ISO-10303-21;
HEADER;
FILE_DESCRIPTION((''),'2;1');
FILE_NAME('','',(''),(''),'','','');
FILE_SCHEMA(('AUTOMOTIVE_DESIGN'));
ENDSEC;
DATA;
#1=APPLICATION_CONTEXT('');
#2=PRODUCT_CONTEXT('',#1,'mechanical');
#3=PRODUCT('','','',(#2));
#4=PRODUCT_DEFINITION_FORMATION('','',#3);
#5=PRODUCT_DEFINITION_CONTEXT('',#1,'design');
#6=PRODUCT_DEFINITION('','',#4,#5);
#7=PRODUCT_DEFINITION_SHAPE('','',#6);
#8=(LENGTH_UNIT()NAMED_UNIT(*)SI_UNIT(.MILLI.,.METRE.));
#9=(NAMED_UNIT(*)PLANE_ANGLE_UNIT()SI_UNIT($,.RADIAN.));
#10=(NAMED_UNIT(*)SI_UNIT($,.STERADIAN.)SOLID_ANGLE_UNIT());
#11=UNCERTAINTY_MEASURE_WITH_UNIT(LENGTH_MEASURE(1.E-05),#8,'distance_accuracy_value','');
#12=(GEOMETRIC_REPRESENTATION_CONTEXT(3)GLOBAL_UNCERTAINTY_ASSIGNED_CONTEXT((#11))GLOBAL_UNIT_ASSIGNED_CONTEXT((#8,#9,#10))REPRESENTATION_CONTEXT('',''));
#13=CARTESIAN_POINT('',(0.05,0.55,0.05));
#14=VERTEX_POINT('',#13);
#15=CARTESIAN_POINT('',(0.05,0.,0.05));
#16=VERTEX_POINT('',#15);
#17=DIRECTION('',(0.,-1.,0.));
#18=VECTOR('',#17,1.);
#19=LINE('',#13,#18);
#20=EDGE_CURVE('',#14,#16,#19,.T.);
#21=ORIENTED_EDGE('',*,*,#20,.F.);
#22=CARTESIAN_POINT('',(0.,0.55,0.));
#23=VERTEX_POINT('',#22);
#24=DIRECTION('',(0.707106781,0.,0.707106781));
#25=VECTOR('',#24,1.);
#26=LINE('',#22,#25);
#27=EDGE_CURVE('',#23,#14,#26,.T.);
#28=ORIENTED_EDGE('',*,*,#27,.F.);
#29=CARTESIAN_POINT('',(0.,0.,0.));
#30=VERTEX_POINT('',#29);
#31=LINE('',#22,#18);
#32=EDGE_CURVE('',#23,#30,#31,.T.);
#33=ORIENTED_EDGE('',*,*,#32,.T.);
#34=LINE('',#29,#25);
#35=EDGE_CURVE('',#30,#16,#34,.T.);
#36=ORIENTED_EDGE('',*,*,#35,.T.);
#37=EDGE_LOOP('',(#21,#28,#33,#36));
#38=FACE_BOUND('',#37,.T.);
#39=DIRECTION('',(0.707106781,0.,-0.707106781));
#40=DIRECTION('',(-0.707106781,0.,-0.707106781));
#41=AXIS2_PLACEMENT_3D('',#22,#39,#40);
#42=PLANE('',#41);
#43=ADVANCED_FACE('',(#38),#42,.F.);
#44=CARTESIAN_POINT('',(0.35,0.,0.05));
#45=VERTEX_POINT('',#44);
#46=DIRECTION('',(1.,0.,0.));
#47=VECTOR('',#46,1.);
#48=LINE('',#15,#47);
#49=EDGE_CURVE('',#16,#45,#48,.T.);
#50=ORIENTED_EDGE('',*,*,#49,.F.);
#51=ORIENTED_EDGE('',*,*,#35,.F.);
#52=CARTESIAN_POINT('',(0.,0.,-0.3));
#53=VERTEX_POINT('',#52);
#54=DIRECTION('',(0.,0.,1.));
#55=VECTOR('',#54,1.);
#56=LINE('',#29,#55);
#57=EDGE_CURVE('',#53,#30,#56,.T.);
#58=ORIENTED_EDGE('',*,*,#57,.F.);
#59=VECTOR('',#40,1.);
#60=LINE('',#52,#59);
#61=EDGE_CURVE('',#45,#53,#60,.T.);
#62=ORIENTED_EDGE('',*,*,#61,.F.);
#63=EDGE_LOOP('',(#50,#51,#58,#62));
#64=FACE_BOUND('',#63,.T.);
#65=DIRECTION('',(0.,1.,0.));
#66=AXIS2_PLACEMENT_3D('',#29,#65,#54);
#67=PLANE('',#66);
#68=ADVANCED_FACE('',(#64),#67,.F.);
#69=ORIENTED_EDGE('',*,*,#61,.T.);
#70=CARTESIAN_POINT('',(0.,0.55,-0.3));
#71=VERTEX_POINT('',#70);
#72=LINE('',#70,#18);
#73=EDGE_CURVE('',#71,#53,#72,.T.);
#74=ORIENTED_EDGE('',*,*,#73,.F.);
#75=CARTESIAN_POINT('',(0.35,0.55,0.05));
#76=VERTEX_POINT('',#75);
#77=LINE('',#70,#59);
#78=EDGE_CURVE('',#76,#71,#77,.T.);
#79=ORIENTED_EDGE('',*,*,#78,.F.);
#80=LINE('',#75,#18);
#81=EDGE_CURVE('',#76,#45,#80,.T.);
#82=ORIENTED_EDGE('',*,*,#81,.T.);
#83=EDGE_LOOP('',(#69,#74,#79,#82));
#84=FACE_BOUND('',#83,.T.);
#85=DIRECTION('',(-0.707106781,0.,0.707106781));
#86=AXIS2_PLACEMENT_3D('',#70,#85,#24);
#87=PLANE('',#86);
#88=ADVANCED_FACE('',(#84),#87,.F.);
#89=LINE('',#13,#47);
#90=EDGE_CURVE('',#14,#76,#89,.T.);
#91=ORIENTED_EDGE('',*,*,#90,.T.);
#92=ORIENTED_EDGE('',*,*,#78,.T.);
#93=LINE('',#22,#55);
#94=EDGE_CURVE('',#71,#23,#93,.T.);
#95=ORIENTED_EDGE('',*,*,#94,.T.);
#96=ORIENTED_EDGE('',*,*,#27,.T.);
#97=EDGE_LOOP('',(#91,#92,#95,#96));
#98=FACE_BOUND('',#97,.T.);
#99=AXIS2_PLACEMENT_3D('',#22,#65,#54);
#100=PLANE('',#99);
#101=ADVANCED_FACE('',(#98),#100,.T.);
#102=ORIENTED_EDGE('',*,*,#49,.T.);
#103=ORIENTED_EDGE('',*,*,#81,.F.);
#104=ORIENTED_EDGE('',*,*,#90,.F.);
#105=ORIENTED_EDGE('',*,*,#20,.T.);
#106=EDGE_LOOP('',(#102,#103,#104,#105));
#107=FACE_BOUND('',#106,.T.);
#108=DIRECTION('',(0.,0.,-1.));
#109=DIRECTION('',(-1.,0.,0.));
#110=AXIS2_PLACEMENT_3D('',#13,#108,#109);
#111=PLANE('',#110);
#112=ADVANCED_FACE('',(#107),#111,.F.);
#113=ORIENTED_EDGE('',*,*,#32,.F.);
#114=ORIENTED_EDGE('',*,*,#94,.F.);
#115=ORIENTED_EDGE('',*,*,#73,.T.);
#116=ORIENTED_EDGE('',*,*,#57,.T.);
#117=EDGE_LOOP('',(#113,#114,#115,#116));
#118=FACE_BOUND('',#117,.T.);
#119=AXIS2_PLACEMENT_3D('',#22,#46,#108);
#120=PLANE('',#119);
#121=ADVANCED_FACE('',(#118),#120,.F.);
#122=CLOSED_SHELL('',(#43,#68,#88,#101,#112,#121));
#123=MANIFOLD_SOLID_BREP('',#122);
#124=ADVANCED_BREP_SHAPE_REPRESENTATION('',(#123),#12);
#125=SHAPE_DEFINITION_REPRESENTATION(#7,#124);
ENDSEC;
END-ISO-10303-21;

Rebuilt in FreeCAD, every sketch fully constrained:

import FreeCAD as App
import Part
import Sketcher

V = App.Vector
Q = App.Units.Quantity

doc = App.newDocument("Part")
body = doc.addObject("PartDesign::Body", "Body")

sketch1 = body.newObject("Sketcher::SketchObject", "Sketch")
sketch1.AttachmentSupport = (doc.getObject("XZ_Plane"), [""])
sketch1.MapMode = "FlatFace"
sketch1.addGeometry([
    Part.LineSegment(V(0, -0.3, 0), V(0, 0, 0)),
    Part.LineSegment(V(0, 0, 0), V(0.05, 0.05, 0)),
    Part.LineSegment(V(0.05, 0.05, 0), V(0.35, 0.05, 0)),
    Part.LineSegment(V(0.35, 0.05, 0), V(0, -0.3, 0)),
], False)
sketch1.addConstraint([
    Sketcher.Constraint("Coincident", 0, 2, 1, 1),
    Sketcher.Constraint("Coincident", 1, 2, 2, 1),
    Sketcher.Constraint("Coincident", 2, 2, 3, 1),
    Sketcher.Constraint("Coincident", 3, 2, 0, 1),
    Sketcher.Constraint("Vertical", 0),
    Sketcher.Constraint("Horizontal", 2),
    Sketcher.Constraint("Coincident", 0, 2, -1, 1),
    Sketcher.Constraint("Parallel", 1, 3),
    Sketcher.Constraint("Equal", 2, 0),
    Sketcher.Constraint("DistanceX", 2, 1, 2, 2, Q("0.3 mm")),
    Sketcher.Constraint("DistanceX", -1, 1, 1, 2, Q("0.05 mm")),
])
pad1 = body.newObject("PartDesign::Pad", "Pad")
pad1.Profile = sketch1
pad1.Length = 0.55
pad1.Reversed = True

doc.recompute()
